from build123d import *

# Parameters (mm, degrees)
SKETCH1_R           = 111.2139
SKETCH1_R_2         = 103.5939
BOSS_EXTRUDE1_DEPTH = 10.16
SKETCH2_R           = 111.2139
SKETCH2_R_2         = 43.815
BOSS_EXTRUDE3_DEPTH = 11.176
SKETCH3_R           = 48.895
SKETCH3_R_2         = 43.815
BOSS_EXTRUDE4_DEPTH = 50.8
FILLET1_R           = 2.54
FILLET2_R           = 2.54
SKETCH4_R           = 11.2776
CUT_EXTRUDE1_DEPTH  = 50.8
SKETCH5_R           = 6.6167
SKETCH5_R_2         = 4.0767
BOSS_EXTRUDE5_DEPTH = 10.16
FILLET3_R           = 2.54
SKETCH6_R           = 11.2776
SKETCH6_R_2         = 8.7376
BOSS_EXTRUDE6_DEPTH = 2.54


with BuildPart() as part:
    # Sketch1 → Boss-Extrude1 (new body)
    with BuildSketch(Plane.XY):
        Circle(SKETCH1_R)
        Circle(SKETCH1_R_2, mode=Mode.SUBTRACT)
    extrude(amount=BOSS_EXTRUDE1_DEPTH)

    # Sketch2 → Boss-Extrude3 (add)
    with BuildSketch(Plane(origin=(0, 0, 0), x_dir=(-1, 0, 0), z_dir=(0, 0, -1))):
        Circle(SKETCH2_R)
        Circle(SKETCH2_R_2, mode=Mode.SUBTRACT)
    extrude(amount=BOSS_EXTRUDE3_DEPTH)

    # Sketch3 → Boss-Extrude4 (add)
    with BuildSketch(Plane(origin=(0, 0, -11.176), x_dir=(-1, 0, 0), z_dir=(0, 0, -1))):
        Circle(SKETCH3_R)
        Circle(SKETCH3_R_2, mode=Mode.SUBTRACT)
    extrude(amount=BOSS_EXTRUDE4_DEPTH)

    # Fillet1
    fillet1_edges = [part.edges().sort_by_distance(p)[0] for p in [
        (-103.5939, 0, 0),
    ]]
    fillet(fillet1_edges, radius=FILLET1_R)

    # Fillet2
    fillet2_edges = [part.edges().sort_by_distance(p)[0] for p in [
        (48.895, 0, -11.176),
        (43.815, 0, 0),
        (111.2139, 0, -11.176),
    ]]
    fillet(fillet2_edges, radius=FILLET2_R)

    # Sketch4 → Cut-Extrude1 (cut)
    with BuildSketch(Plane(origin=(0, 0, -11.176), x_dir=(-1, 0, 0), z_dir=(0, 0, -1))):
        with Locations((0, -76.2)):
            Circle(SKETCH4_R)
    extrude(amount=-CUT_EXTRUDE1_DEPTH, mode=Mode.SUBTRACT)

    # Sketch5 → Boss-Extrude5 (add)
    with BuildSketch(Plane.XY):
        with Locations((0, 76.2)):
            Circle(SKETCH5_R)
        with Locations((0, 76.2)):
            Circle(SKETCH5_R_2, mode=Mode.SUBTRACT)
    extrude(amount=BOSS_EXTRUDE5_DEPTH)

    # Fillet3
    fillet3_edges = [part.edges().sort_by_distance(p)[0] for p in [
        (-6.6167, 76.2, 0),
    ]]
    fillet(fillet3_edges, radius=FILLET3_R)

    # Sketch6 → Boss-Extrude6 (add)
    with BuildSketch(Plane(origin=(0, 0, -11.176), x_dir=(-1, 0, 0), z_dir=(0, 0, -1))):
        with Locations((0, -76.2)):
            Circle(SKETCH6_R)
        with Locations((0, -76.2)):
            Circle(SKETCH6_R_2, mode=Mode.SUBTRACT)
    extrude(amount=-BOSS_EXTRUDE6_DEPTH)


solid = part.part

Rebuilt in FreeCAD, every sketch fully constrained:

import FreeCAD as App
import Part
import Sketcher
from FreeCAD import Vector
Q = App.Units.Quantity


def edges_at(feature, points):
    """Names of the edges that pass closest to the given points."""
    edges = feature.Shape.Edges
    near = lambda p: min(range(len(edges)), key=lambda i: edges[i].distToShape(Part.Vertex(*p))[0])
    return sorted({f"Edge{near(p) + 1}" for p in points})

doc = App.newDocument("Part")
body = doc.addObject("PartDesign::Body", "Body")

sketch1 = body.newObject("Sketcher::SketchObject", "Sketch")
sketch1.AttachmentSupport = (doc.getObject("XY_Plane"), [""])
sketch1.MapMode = "FlatFace"
sketch1.addGeometry(Part.Circle(Vector(0, 0, 0), Vector(0, 0, 1), 111), False)
sketch1.addGeometry(Part.Circle(Vector(0, 0, 0), Vector(0, 0, 1), 104), False)
sketch1.addConstraint(Sketcher.Constraint("Coincident", 0, 3, -1, 1))
sketch1.addConstraint(Sketcher.Constraint("Coincident", 1, 3, -1, 1))
sketch1.addConstraint(Sketcher.Constraint("Diameter", 0, Q("8.757 in")))
sketch1.addConstraint(Sketcher.Constraint("Diameter", 1, Q("8.157 in")))
pad1 = body.newObject("PartDesign::Pad", "Pad")
pad1.Profile = sketch1
pad1.Length = Q("0.4 in")

sketch2 = body.newObject("Sketcher::SketchObject", "Sketch001")
sketch2.AttachmentSupport = (doc.getObject("XY_Plane"), [""])
sketch2.MapMode = "FlatFace"
sketch2.addGeometry(Part.Circle(Vector(0, 0, 0), Vector(0, 0, 1), 111), False)
sketch2.addGeometry(Part.Circle(Vector(0, 0, 0), Vector(0, 0, 1), 44), False)
sketch2.addConstraint(Sketcher.Constraint("Coincident", 0, 3, -1, 1))
sketch2.addConstraint(Sketcher.Constraint("Coincident", 1, 3, -1, 1))
sketch2.addConstraint(Sketcher.Constraint("Diameter", 1, Q("3.45 in")))
sketch2.addConstraint(Sketcher.Constraint("Diameter", 0, Q("8.757 in")))
pad2 = body.newObject("PartDesign::Pad", "Pad001")
pad2.Profile = sketch2
pad2.Length = Q("0.44 in")
pad2.Reversed = True

sketch3 = body.newObject("Sketcher::SketchObject", "Sketch002")
sketch3.AttachmentSupport = (doc.getObject("XY_Plane"), [""])
sketch3.MapMode = "FlatFace"
sketch3.AttachmentOffset = App.Placement(Vector(0, 0, -0.44 * 25.4), App.Rotation())
sketch3.addGeometry(Part.Circle(Vector(0, 0, 0), Vector(0, 0, 1), 49), False)
sketch3.addGeometry(Part.Circle(Vector(0, 0, 0), Vector(0, 0, 1), 44), False)
sketch3.addConstraint(Sketcher.Constraint("Coincident", 0, 3, -1, 1))
sketch3.addConstraint(Sketcher.Constraint("Coincident", 1, 3, -1, 1))
sketch3.addConstraint(Sketcher.Constraint("Diameter", 0, Q("3.85 in")))
sketch3.addConstraint(Sketcher.Constraint("Diameter", 1, Q("3.45 in")))
pad3 = body.newObject("PartDesign::Pad", "Pad002")
pad3.Profile = sketch3
pad3.Length = Q("2 in")
pad3.Reversed = True
doc.recompute()

fillet = body.newObject("PartDesign::Fillet", "Fillet")
fillet.Base = (pad3, edges_at(pad3, [(-103.594, 0, 0)]))
fillet.Radius = Q("0.1 in")
doc.recompute()

fillet2 = body.newObject("PartDesign::Fillet", "Fillet001")
fillet2.Base = (fillet, edges_at(fillet, [(48.895, 0, -11.176), (43.815, 0, 0), (111.214, 0, -11.176)]))
fillet2.Radius = Q("0.1 in")

sketch4 = body.newObject("Sketcher::SketchObject", "Sketch003")
sketch4.AttachmentSupport = (doc.getObject("XY_Plane"), [""])
sketch4.MapMode = "FlatFace"
sketch4.AttachmentOffset = App.Placement(Vector(0, 0, -0.44 * 25.4), App.Rotation())
sketch4.addGeometry(Part.Circle(Vector(0, -76, 0), Vector(0, 0, 1), 11), False)
sketch4.addConstraint(Sketcher.Constraint("PointOnObject", 0, 3, -2))
sketch4.addConstraint(Sketcher.Constraint("Diameter", 0, Q("0.888 in")))
sketch4.addConstraint(Sketcher.Constraint("DistanceY", 0, 3, -1, 1, Q("3 in")))
pocket1 = body.newObject("PartDesign::Pocket", "Pocket")
pocket1.Profile = sketch4
pocket1.Length = Q("2 in")
pocket1.Reversed = True

sketch5 = body.newObject("Sketcher::SketchObject", "Sketch004")
sketch5.AttachmentSupport = (doc.getObject("XY_Plane"), [""])
sketch5.MapMode = "FlatFace"
sketch5.addGeometry(Part.Circle(Vector(0, 76.2, 0), Vector(0, 0, 1), 6.6), False)
sketch5.addGeometry(Part.Circle(Vector(0, 76.2, 0), Vector(0, 0, 1), 4.1), False)
sketch5.addConstraint(Sketcher.Constraint("Coincident", 1, 3, 0, 3))
sketch5.addConstraint(Sketcher.Constraint("PointOnObject", 0, 3, -2))
sketch5.addConstraint(Sketcher.Constraint("Diameter", 0, Q("0.521 in")))
sketch5.addConstraint(Sketcher.Constraint("Diameter", 1, Q("0.321 in")))
sketch5.addConstraint(Sketcher.Constraint("DistanceY", -1, 1, 0, 3, Q("3 in")))
pad4 = body.newObject("PartDesign::Pad", "Pad003")
pad4.Profile = sketch5
pad4.Length = Q("0.4 in")
doc.recompute()

fillet3 = body.newObject("PartDesign::Fillet", "Fillet002")
fillet3.Base = (pad4, edges_at(pad4, [(-6.617, 76.2, 0)]))
fillet3.Radius = Q("0.1 in")

sketch6 = body.newObject("Sketcher::SketchObject", "Sketch005")
sketch6.AttachmentSupport = (doc.getObject("XY_Plane"), [""])
sketch6.MapMode = "FlatFace"
sketch6.AttachmentOffset = App.Placement(Vector(0, 0, -0.44 * 25.4), App.Rotation())
sketch6.addGeometry(Part.Circle(Vector(0, -76, 0), Vector(0, 0, 1), 11), False)
sketch6.addGeometry(Part.Circle(Vector(0, -76, 0), Vector(0, 0, 1), 9), False)
sketch6.addConstraint(Sketcher.Constraint("Coincident", 1, 3, 0, 3))
sketch6.addConstraint(Sketcher.Constraint("PointOnObject", 0, 3, -2))
sketch6.addConstraint(Sketcher.Constraint("Diameter", 0, Q("0.888 in")))
sketch6.addConstraint(Sketcher.Constraint("Diameter", 1, Q("0.688 in")))
sketch6.addConstraint(Sketcher.Constraint("DistanceY", 0, 3, -1, 1, Q("3 in")))
pad5 = body.newObject("PartDesign::Pad", "Pad004")
pad5.Profile = sketch6
pad5.Length = Q("0.1 in")

doc.recompute()
